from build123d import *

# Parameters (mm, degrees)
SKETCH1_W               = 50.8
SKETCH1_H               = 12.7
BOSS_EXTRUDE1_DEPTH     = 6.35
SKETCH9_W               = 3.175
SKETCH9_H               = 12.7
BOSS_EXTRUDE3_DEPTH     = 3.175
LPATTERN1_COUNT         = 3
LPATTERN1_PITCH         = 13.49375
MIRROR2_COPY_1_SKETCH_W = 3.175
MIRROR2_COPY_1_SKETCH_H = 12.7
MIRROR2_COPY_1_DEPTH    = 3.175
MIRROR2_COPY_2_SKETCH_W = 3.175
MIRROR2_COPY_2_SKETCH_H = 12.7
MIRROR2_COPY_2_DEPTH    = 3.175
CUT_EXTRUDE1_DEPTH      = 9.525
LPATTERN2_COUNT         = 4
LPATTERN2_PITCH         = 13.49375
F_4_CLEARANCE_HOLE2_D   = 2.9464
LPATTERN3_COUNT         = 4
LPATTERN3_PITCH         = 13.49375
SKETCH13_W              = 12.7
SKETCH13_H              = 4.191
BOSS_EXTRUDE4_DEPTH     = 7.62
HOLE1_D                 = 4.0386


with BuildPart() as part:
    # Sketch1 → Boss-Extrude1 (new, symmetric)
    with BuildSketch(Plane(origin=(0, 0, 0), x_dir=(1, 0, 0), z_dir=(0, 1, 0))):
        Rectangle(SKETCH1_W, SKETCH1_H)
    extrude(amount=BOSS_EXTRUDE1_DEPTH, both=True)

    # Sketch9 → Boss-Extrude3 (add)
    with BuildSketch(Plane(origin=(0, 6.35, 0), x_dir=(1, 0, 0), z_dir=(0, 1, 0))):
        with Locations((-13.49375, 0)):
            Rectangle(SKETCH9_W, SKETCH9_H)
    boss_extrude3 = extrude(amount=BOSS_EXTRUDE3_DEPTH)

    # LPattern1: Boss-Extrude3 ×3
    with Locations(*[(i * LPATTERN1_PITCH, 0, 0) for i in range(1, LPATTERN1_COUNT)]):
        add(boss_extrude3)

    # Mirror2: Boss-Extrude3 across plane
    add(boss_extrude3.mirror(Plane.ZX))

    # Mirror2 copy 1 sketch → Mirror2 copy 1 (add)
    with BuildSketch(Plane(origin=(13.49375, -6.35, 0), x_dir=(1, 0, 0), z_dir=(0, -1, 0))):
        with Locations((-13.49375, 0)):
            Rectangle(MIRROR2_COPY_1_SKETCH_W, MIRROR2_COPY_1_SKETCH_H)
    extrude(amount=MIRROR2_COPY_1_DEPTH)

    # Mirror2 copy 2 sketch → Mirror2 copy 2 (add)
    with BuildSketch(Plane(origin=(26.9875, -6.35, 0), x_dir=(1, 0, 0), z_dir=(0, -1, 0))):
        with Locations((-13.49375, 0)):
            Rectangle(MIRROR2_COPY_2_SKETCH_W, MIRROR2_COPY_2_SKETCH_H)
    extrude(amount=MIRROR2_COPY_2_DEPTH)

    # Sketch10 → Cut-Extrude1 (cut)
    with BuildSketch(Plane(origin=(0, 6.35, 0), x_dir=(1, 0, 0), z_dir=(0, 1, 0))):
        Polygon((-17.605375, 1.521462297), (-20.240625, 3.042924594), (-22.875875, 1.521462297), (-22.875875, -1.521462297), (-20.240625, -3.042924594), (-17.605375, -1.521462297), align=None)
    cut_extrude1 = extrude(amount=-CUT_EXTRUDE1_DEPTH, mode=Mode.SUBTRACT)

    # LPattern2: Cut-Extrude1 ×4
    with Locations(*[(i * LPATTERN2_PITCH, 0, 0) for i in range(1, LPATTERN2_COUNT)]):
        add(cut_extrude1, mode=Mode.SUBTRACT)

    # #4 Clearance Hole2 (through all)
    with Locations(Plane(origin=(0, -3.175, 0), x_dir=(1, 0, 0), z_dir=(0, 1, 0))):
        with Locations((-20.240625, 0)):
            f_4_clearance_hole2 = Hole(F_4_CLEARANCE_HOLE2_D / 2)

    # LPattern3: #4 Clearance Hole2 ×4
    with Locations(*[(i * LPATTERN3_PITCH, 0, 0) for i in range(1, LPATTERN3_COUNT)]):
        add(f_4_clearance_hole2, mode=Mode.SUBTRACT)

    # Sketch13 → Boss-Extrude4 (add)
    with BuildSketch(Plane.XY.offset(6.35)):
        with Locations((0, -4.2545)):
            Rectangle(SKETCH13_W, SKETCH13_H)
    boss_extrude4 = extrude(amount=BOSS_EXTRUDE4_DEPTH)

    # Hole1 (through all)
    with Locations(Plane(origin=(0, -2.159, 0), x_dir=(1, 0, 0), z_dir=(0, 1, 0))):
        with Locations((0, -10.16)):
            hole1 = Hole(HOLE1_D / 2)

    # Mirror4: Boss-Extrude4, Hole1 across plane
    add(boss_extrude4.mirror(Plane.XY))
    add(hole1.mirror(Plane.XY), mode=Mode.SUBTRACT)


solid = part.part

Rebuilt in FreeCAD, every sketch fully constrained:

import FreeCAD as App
import Part
import Sketcher

V = App.Vector
Q = App.Units.Quantity


def add_polygon(sketch, points):
    """Adds a closed chain of lines whose ends are joined by coincident constraints."""
    first, n = sketch.GeometryCount, len(points)
    for a, b in zip(points, points[1:] + points[:1]):
        sketch.addGeometry(Part.LineSegment(App.Vector(*a, 0), App.Vector(*b, 0)), False)
    for i in range(n):
        sketch.addConstraint(Sketcher.Constraint("Coincident", first + i, 2, first + (i + 1) % n, 1))

doc = App.newDocument("Part")
params = doc.addObject("Spreadsheet::Sheet", "Params")
for row, (alias, value) in enumerate([
    ("sketch1_width", "2 in"),
    ("sketch1_height", "0.5 in"),
    ("pad1_length", "0.5 in"),
    ("sketch2_height", "0.5 in"),
    ("sketch2_width", "0.125 in"),
    ("pad2_length", "0.125 in"),
    ("linearpattern_pitch", "0.53125 in"),
    ("sketch3_height", "0.5 in"),
    ("sketch3_width", "0.125 in"),
    ("pad3_length", "0.125 in"),
    ("sketch4_height", "0.5 in"),
    ("sketch4_width", "0.125 in"),
    ("pad4_length", "0.125 in"),
    ("pocket1_length", "0.375 in"),
    ("linearpattern2_pitch", "0.53125 in"),
    ("sketch6_diameter", "0.116 in"),
    ("hole_diameter", "0.116 in"),
    ("linearpattern3_pitch", "0.53125 in"),
    ("sketch7_width", "0.5 in"),
    ("sketch7_height", "0.165 in"),
    ("pad5_length", "0.3 in"),
    ("sketch8_diameter", "0.159 in"),
    ("hole2_diameter", "0.159 in"),
], start=1):
    params.set(f"A{row}", alias)
    params.set(f"B{row}", "=" + value)
    params.setAlias(f"B{row}", alias)

body = doc.addObject("PartDesign::Body", "Body")

# Sketch on XZ plane
sketch1 = doc.addObject("Sketcher::SketchObject", "Sketch")
body.addObject(sketch1)
sketch1.AttachmentSupport = (doc.XZ_Plane, [""])
sketch1.MapMode = "FlatFace"
add_polygon(sketch1, [(-25, -6), (-25, 6), (25, 6), (25, -6)])  # lines 0-3
sketch1.addConstraint([
    Sketcher.Constraint("Vertical", 0),
    Sketcher.Constraint("Horizontal", 1),
    Sketcher.Constraint("Vertical", 2),
    Sketcher.Constraint("Horizontal", 3),
    Sketcher.Constraint("Symmetric", 0, 2, 2, 2, -1, 1),
    Sketcher.Constraint("DistanceX", 1, 1, 1, 2, Q("2 in")),
    Sketcher.Constraint("DistanceY", 0, 1, 0, 2, Q("0.5 in")),
])
sketch1.setExpression("Constraints[9]", "Params.sketch1_width")
sketch1.setExpression("Constraints[10]", "Params.sketch1_height")
pad1 = doc.addObject("PartDesign::Pad", "Pad")
body.addObject(pad1)
pad1.Profile = sketch1
pad1.setExpression("Length", "Params.pad1_length")
pad1.Midplane = True

# Sketch on XZ plane
sketch2 = doc.addObject("Sketcher::SketchObject", "Sketch001")
body.addObject(sketch2)
sketch2.AttachmentSupport = (doc.XZ_Plane, [""])
sketch2.MapMode = "FlatFace"
sketch2.AttachmentOffset = App.Placement(V(0, 0, -0.25 * 25.4), App.Rotation())
add_polygon(sketch2, [(-15.1, -6.3), (-15.1, 6.3), (-11.9, 6.3), (-11.9, -6.3)])  # lines 0-3
sketch2.addConstraint([
    Sketcher.Constraint("Vertical", 0),
    Sketcher.Constraint("Horizontal", 1),
    Sketcher.Constraint("Vertical", 2),
    Sketcher.Constraint("Horizontal", 3),
    Sketcher.Constraint("DistanceY", 0, 1, 0, 2, Q("0.5 in")),
    Sketcher.Constraint("DistanceX", 1, 1, 1, 2, Q("0.125 in")),
    Sketcher.Constraint("DistanceY", -1, 1, 0, 2, Q("0.25 in")),
    Sketcher.Constraint("DistanceX", 0, 2, -1, 1, Q("0.59375 in")),
])
sketch2.setExpression("Constraints[8]", "Params.sketch2_height")
sketch2.setExpression("Constraints[9]", "Params.sketch2_width")
pad2 = doc.addObject("PartDesign::Pad", "Pad001")
body.addObject(pad2)
pad2.Profile = sketch2
pad2.setExpression("Length", "Params.pad2_length")
pad2.Reversed = True
doc.recompute()

linearpattern = doc.addObject("PartDesign::LinearPattern", "LinearPattern")
body.addObject(linearpattern)
linearpattern.Originals = [pad2]
linearpattern.Direction = (doc.X_Axis, [""])
linearpattern.Mode = "offset"
linearpattern.setExpression("Offset", "Params.linearpattern_pitch")
linearpattern.Occurrences = 3
body.Tip = linearpattern
doc.recompute()

mirrored = doc.addObject("PartDesign::Mirrored", "Mirrored")
body.addObject(mirrored)
mirrored.Originals = [pad2]
mirrored.MirrorPlane = (doc.XZ_Plane, [""])
body.Tip = mirrored

# Sketch on XZ plane
sketch3 = doc.addObject("Sketcher::SketchObject", "Sketch002")
body.addObject(sketch3)
sketch3.AttachmentSupport = (doc.XZ_Plane, [""])
sketch3.MapMode = "FlatFace"
sketch3.AttachmentOffset = App.Placement(V(0, 0, 0.25 * 25.4), App.Rotation())
add_polygon(sketch3, [(-1.6, 6.3), (-1.6, -6.3), (1.6, -6.3), (1.6, 6.3)])  # lines 0-3
sketch3.addConstraint([
    Sketcher.Constraint("Vertical", 0),
    Sketcher.Constraint("Horizontal", 1),
    Sketcher.Constraint("Vertical", 2),
    Sketcher.Constraint("Horizontal", 3),
    Sketcher.Constraint("Symmetric", 0, 2, 2, 2, -1, 1),
    Sketcher.Constraint("DistanceY", 0, 2, 0, 1, Q("0.5 in")),
    Sketcher.Constraint("DistanceX", 1, 1, 1, 2, Q("0.125 in")),
])
sketch3.setExpression("Constraints[9]", "Params.sketch3_height")
sketch3.setExpression("Constraints[10]", "Params.sketch3_width")
pad3 = doc.addObject("PartDesign::Pad", "Pad002")
body.addObject(pad3)
pad3.Profile = sketch3
pad3.setExpression("Length", "Params.pad3_length")

# Sketch on XZ plane
sketch4 = doc.addObject("Sketcher::SketchObject", "Sketch003")
body.addObject(sketch4)
sketch4.AttachmentSupport = (doc.XZ_Plane, [""])
sketch4.MapMode = "FlatFace"
sketch4.AttachmentOffset = App.Placement(V(0, 0, 0.25 * 25.4), App.Rotation())
add_polygon(sketch4, [(11.9, 6.3), (11.9, -6.3), (15.1, -6.3), (15.1, 6.3)])  # lines 0-3
sketch4.addConstraint([
    Sketcher.Constraint("Vertical", 0),
    Sketcher.Constraint("Horizontal", 1),
    Sketcher.Constraint("Vertical", 2),
    Sketcher.Constraint("Horizontal", 3),
    Sketcher.Constraint("DistanceY", 0, 2, 0, 1, Q("0.5 in")),
    Sketcher.Constraint("DistanceX", 1, 1, 1, 2, Q("0.125 in")),
    Sketcher.Constraint("DistanceY", 0, 2, -1, 1, Q("0.25 in")),
    Sketcher.Constraint("DistanceX", -1, 1, 0, 2, Q("0.46875 in")),
])
sketch4.setExpression("Constraints[8]", "Params.sketch4_height")
sketch4.setExpression("Constraints[9]", "Params.sketch4_width")
pad4 = doc.addObject("PartDesign::Pad", "Pad003")
body.addObject(pad4)
pad4.Profile = sketch4
pad4.setExpression("Length", "Params.pad4_length")

# Sketch on XZ plane
sketch5 = doc.addObject("Sketcher::SketchObject", "Sketch004")
body.addObject(sketch5)
sketch5.AttachmentSupport = (doc.XZ_Plane, [""])
sketch5.MapMode = "FlatFace"
sketch5.AttachmentOffset = App.Placement(V(0, 0, -0.25 * 25.4), App.Rotation())
add_polygon(sketch5, [(-17.6, -1.5), (-20.2, -3), (-22.9, -1.5), (-22.9, 1.5), (-20.2, 3), (-17.6, 1.5)])  # lines 0-5
sketch5.addConstraint([
    Sketcher.Constraint("Vertical", 2),
    Sketcher.Constraint("Vertical", 5),
    Sketcher.Constraint("Symmetric", 0, 2, 3, 2, -1),
    Sketcher.Constraint("Parallel", 0, 3),
    Sketcher.Constraint("Parallel", 1, 4),
    Sketcher.Constraint("Horizontal", 2, 2, 4, 2),
    Sketcher.Constraint("Horizontal", 1, 2, 5, 2),
    Sketcher.Constraint("Angle", 0, Q("-150 deg")),
    Sketcher.Constraint("DistanceY", 2, 1, 2, 2, Q("0.1198002 in")),
    Sketcher.Constraint("DistanceX", 0, 2, -1, 1, Q("0.796875 in")),
    Sketcher.Constraint("Distance", 0, Q("0.1198002 in")),
])
pocket1 = doc.addObject("PartDesign::Pocket", "Pocket")
body.addObject(pocket1)
pocket1.Profile = sketch5
pocket1.setExpression("Length", "Params.pocket1_length")
pocket1.Reversed = True
doc.recompute()

linearpattern2 = doc.addObject("PartDesign::LinearPattern", "LinearPattern001")
body.addObject(linearpattern2)
linearpattern2.Originals = [pocket1]
linearpattern2.Direction = (doc.X_Axis, [""])
linearpattern2.Mode = "offset"
linearpattern2.setExpression("Offset", "Params.linearpattern2_pitch")
linearpattern2.Occurrences = 4
body.Tip = linearpattern2

# Sketch on XZ plane
sketch6 = doc.addObject("Sketcher::SketchObject", "Sketch005")
body.addObject(sketch6)
sketch6.AttachmentSupport = (doc.XZ_Plane, [""])
sketch6.MapMode = "FlatFace"
sketch6.AttachmentOffset = App.Placement(V(0, 0, 0.125 * 25.4), App.Rotation())
sketch6.addGeometry(Part.Circle(V(-20.2, 0, 0), V(0, 0, 1), 1.5), False)
sketch6.addConstraint([
    Sketcher.Constraint("PointOnObject", 0, 3, -1),
    Sketcher.Constraint("Diameter", 0, Q("0.116 in")),
    Sketcher.Constraint("DistanceX", 0, 3, -1, 1, Q("0.796875 in")),
])
sketch6.setExpression("Constraints[1]", "Params.sketch6_diameter")
doc.recompute()
hole = doc.addObject("PartDesign::Hole", "Hole")
body.addObject(hole)
hole.Profile = sketch6
hole.ThreadType = "None"
hole.setExpression("Diameter", "Params.hole_diameter")
hole.DepthType = "ThroughAll"
hole.Reversed = True
doc.recompute()

linearpattern3 = doc.addObject("PartDesign::LinearPattern", "LinearPattern002")
body.addObject(linearpattern3)
linearpattern3.Originals = [hole]
linearpattern3.Direction = (doc.X_Axis, [""])
linearpattern3.Mode = "offset"
linearpattern3.setExpression("Offset", "Params.linearpattern3_pitch")
linearpattern3.Occurrences = 4
body.Tip = linearpattern3

# Sketch on XY plane
sketch7 = doc.addObject("Sketcher::SketchObject", "Sketch006")
body.addObject(sketch7)
sketch7.AttachmentSupport = (doc.XY_Plane, [""])
sketch7.MapMode = "FlatFace"
sketch7.AttachmentOffset = App.Placement(V(0, 0, 0.25 * 25.4), App.Rotation())
add_polygon(sketch7, [(-6.3, -2.2), (-6.3, -6.3), (6.3, -6.3), (6.3, -2.2)])  # lines 0-3
sketch7.addConstraint([
    Sketcher.Constraint("Vertical", 0),
    Sketcher.Constraint("Horizontal", 1),
    Sketcher.Constraint("Vertical", 2),
    Sketcher.Constraint("Horizontal", 3),
    Sketcher.Constraint("DistanceX", 1, 1, 1, 2, Q("0.5 in")),
    Sketcher.Constraint("DistanceY", 0, 2, 0, 1, Q("0.165 in")),
    Sketcher.Constraint("DistanceX", 0, 2, -1, 1, Q("0.25 in")),
    Sketcher.Constraint("DistanceY", 0, 2, -1, 1, Q("0.25 in")),
])
sketch7.setExpression("Constraints[8]", "Params.sketch7_width")
sketch7.setExpression("Constraints[9]", "Params.sketch7_height")
pad5 = doc.addObject("PartDesign::Pad", "Pad004")
body.addObject(pad5)
pad5.Profile = sketch7
pad5.setExpression("Length", "Params.pad5_length")

# Sketch on XZ plane
sketch8 = doc.addObject("Sketcher::SketchObject", "Sketch007")
body.addObject(sketch8)
sketch8.AttachmentSupport = (doc.XZ_Plane, [""])
sketch8.MapMode = "FlatFace"
sketch8.AttachmentOffset = App.Placement(V(0, 0, 0.085 * 25.4), App.Rotation())
sketch8.addGeometry(Part.Circle(V(0, 10.2, 0), V(0, 0, 1), 2), False)
sketch8.addConstraint([
    Sketcher.Constraint("PointOnObject", 0, 3, -2),
    Sketcher.Constraint("Diameter", 0, Q("0.159 in")),
    Sketcher.Constraint("DistanceY", -1, 1, 0, 3, Q("0.4 in")),
])
sketch8.setExpression("Constraints[1]", "Params.sketch8_diameter")
doc.recompute()
hole2 = doc.addObject("PartDesign::Hole", "Hole001")
body.addObject(hole2)
hole2.Profile = sketch8
hole2.ThreadType = "None"
hole2.setExpression("Diameter", "Params.hole2_diameter")
hole2.DepthType = "ThroughAll"
hole2.Reversed = True
doc.recompute()

mirrored2 = doc.addObject("PartDesign::Mirrored", "Mirrored001")
body.addObject(mirrored2)
mirrored2.Originals = [pad5, hole2]
mirrored2.MirrorPlane = (doc.XY_Plane, [""])
body.Tip = mirrored2

doc.recompute()
